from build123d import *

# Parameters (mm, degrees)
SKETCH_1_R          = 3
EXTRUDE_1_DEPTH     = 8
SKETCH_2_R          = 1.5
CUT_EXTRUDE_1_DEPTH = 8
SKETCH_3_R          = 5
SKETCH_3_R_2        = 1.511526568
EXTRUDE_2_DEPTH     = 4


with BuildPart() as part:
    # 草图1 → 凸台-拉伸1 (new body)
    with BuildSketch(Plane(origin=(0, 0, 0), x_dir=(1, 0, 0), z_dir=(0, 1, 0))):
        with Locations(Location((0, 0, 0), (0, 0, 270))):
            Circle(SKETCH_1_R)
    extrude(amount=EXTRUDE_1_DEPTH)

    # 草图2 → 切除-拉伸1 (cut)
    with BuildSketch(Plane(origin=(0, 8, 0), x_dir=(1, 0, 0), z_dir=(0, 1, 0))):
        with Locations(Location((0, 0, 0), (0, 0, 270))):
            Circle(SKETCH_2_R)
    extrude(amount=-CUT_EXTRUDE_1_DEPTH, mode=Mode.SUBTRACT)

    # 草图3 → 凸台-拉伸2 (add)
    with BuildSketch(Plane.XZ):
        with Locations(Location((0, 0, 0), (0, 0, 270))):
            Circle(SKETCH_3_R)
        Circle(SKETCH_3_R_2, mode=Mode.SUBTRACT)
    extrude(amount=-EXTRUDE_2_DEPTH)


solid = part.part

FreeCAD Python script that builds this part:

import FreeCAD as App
import Part
import Sketcher

V = App.Vector

doc = App.newDocument("Part")
body = doc.addObject("PartDesign::Body", "Body")

sketch1 = body.newObject("Sketcher::SketchObject", "Sketch")
sketch1.AttachmentSupport = (doc.getObject("XZ_Plane"), [""])
sketch1.MapMode = "FlatFace"
sketch1.addGeometry(Part.Circle(V(0, 0, 0), V(0, 0, 1), 3), False)
sketch1.addConstraint(Sketcher.Constraint("Coincident", 0, 3, -1, 1))
sketch1.addConstraint(Sketcher.Constraint("Diameter", 0, 6.0))
pad1 = body.newObject("PartDesign::Pad", "Pad")
pad1.Profile = sketch1
pad1.Length = 8
pad1.Reversed = True

sketch2 = body.newObject("Sketcher::SketchObject", "Sketch001")
sketch2.AttachmentSupport = (doc.getObject("XZ_Plane"), [""])
sketch2.MapMode = "FlatFace"
sketch2.AttachmentOffset = App.Placement(V(0, 0, -8), App.Rotation())
sketch2.addGeometry(Part.Circle(V(0, 0, 0), V(0, 0, 1), 1.5), False)
sketch2.addConstraint(Sketcher.Constraint("Coincident", 0, 3, -1, 1))
sketch2.addConstraint(Sketcher.Constraint("Diameter", 0, 3.0))
pocket1 = body.newObject("PartDesign::Pocket", "Pocket")
pocket1.Profile = sketch2
pocket1.Length = 8
pocket1.Reversed = True

sketch3 = body.newObject("Sketcher::SketchObject", "Sketch002")
sketch3.AttachmentSupport = (doc.getObject("XZ_Plane"), [""])
sketch3.MapMode = "FlatFace"
sketch3.addGeometry(Part.Circle(V(0, 0, 0), V(0, 0, 1), 5), False)
sketch3.addGeometry(Part.Circle(V(0, 0, 0), V(0, 0, 1), 1.5), False)
sketch3.addConstraint(Sketcher.Constraint("Coincident", 0, 3, -1, 1))
sketch3.addConstraint(Sketcher.Constraint("Coincident", 1, 3, -1, 1))
sketch3.addConstraint(Sketcher.Constraint("Diameter", 0, 10.0))
sketch3.addConstraint(Sketcher.Constraint("Diameter", 1, 3.023053))
pad2 = body.newObject("PartDesign::Pad", "Pad001")
pad2.Profile = sketch3
pad2.Length = 4
pad2.Reversed = True

doc.recompute()
